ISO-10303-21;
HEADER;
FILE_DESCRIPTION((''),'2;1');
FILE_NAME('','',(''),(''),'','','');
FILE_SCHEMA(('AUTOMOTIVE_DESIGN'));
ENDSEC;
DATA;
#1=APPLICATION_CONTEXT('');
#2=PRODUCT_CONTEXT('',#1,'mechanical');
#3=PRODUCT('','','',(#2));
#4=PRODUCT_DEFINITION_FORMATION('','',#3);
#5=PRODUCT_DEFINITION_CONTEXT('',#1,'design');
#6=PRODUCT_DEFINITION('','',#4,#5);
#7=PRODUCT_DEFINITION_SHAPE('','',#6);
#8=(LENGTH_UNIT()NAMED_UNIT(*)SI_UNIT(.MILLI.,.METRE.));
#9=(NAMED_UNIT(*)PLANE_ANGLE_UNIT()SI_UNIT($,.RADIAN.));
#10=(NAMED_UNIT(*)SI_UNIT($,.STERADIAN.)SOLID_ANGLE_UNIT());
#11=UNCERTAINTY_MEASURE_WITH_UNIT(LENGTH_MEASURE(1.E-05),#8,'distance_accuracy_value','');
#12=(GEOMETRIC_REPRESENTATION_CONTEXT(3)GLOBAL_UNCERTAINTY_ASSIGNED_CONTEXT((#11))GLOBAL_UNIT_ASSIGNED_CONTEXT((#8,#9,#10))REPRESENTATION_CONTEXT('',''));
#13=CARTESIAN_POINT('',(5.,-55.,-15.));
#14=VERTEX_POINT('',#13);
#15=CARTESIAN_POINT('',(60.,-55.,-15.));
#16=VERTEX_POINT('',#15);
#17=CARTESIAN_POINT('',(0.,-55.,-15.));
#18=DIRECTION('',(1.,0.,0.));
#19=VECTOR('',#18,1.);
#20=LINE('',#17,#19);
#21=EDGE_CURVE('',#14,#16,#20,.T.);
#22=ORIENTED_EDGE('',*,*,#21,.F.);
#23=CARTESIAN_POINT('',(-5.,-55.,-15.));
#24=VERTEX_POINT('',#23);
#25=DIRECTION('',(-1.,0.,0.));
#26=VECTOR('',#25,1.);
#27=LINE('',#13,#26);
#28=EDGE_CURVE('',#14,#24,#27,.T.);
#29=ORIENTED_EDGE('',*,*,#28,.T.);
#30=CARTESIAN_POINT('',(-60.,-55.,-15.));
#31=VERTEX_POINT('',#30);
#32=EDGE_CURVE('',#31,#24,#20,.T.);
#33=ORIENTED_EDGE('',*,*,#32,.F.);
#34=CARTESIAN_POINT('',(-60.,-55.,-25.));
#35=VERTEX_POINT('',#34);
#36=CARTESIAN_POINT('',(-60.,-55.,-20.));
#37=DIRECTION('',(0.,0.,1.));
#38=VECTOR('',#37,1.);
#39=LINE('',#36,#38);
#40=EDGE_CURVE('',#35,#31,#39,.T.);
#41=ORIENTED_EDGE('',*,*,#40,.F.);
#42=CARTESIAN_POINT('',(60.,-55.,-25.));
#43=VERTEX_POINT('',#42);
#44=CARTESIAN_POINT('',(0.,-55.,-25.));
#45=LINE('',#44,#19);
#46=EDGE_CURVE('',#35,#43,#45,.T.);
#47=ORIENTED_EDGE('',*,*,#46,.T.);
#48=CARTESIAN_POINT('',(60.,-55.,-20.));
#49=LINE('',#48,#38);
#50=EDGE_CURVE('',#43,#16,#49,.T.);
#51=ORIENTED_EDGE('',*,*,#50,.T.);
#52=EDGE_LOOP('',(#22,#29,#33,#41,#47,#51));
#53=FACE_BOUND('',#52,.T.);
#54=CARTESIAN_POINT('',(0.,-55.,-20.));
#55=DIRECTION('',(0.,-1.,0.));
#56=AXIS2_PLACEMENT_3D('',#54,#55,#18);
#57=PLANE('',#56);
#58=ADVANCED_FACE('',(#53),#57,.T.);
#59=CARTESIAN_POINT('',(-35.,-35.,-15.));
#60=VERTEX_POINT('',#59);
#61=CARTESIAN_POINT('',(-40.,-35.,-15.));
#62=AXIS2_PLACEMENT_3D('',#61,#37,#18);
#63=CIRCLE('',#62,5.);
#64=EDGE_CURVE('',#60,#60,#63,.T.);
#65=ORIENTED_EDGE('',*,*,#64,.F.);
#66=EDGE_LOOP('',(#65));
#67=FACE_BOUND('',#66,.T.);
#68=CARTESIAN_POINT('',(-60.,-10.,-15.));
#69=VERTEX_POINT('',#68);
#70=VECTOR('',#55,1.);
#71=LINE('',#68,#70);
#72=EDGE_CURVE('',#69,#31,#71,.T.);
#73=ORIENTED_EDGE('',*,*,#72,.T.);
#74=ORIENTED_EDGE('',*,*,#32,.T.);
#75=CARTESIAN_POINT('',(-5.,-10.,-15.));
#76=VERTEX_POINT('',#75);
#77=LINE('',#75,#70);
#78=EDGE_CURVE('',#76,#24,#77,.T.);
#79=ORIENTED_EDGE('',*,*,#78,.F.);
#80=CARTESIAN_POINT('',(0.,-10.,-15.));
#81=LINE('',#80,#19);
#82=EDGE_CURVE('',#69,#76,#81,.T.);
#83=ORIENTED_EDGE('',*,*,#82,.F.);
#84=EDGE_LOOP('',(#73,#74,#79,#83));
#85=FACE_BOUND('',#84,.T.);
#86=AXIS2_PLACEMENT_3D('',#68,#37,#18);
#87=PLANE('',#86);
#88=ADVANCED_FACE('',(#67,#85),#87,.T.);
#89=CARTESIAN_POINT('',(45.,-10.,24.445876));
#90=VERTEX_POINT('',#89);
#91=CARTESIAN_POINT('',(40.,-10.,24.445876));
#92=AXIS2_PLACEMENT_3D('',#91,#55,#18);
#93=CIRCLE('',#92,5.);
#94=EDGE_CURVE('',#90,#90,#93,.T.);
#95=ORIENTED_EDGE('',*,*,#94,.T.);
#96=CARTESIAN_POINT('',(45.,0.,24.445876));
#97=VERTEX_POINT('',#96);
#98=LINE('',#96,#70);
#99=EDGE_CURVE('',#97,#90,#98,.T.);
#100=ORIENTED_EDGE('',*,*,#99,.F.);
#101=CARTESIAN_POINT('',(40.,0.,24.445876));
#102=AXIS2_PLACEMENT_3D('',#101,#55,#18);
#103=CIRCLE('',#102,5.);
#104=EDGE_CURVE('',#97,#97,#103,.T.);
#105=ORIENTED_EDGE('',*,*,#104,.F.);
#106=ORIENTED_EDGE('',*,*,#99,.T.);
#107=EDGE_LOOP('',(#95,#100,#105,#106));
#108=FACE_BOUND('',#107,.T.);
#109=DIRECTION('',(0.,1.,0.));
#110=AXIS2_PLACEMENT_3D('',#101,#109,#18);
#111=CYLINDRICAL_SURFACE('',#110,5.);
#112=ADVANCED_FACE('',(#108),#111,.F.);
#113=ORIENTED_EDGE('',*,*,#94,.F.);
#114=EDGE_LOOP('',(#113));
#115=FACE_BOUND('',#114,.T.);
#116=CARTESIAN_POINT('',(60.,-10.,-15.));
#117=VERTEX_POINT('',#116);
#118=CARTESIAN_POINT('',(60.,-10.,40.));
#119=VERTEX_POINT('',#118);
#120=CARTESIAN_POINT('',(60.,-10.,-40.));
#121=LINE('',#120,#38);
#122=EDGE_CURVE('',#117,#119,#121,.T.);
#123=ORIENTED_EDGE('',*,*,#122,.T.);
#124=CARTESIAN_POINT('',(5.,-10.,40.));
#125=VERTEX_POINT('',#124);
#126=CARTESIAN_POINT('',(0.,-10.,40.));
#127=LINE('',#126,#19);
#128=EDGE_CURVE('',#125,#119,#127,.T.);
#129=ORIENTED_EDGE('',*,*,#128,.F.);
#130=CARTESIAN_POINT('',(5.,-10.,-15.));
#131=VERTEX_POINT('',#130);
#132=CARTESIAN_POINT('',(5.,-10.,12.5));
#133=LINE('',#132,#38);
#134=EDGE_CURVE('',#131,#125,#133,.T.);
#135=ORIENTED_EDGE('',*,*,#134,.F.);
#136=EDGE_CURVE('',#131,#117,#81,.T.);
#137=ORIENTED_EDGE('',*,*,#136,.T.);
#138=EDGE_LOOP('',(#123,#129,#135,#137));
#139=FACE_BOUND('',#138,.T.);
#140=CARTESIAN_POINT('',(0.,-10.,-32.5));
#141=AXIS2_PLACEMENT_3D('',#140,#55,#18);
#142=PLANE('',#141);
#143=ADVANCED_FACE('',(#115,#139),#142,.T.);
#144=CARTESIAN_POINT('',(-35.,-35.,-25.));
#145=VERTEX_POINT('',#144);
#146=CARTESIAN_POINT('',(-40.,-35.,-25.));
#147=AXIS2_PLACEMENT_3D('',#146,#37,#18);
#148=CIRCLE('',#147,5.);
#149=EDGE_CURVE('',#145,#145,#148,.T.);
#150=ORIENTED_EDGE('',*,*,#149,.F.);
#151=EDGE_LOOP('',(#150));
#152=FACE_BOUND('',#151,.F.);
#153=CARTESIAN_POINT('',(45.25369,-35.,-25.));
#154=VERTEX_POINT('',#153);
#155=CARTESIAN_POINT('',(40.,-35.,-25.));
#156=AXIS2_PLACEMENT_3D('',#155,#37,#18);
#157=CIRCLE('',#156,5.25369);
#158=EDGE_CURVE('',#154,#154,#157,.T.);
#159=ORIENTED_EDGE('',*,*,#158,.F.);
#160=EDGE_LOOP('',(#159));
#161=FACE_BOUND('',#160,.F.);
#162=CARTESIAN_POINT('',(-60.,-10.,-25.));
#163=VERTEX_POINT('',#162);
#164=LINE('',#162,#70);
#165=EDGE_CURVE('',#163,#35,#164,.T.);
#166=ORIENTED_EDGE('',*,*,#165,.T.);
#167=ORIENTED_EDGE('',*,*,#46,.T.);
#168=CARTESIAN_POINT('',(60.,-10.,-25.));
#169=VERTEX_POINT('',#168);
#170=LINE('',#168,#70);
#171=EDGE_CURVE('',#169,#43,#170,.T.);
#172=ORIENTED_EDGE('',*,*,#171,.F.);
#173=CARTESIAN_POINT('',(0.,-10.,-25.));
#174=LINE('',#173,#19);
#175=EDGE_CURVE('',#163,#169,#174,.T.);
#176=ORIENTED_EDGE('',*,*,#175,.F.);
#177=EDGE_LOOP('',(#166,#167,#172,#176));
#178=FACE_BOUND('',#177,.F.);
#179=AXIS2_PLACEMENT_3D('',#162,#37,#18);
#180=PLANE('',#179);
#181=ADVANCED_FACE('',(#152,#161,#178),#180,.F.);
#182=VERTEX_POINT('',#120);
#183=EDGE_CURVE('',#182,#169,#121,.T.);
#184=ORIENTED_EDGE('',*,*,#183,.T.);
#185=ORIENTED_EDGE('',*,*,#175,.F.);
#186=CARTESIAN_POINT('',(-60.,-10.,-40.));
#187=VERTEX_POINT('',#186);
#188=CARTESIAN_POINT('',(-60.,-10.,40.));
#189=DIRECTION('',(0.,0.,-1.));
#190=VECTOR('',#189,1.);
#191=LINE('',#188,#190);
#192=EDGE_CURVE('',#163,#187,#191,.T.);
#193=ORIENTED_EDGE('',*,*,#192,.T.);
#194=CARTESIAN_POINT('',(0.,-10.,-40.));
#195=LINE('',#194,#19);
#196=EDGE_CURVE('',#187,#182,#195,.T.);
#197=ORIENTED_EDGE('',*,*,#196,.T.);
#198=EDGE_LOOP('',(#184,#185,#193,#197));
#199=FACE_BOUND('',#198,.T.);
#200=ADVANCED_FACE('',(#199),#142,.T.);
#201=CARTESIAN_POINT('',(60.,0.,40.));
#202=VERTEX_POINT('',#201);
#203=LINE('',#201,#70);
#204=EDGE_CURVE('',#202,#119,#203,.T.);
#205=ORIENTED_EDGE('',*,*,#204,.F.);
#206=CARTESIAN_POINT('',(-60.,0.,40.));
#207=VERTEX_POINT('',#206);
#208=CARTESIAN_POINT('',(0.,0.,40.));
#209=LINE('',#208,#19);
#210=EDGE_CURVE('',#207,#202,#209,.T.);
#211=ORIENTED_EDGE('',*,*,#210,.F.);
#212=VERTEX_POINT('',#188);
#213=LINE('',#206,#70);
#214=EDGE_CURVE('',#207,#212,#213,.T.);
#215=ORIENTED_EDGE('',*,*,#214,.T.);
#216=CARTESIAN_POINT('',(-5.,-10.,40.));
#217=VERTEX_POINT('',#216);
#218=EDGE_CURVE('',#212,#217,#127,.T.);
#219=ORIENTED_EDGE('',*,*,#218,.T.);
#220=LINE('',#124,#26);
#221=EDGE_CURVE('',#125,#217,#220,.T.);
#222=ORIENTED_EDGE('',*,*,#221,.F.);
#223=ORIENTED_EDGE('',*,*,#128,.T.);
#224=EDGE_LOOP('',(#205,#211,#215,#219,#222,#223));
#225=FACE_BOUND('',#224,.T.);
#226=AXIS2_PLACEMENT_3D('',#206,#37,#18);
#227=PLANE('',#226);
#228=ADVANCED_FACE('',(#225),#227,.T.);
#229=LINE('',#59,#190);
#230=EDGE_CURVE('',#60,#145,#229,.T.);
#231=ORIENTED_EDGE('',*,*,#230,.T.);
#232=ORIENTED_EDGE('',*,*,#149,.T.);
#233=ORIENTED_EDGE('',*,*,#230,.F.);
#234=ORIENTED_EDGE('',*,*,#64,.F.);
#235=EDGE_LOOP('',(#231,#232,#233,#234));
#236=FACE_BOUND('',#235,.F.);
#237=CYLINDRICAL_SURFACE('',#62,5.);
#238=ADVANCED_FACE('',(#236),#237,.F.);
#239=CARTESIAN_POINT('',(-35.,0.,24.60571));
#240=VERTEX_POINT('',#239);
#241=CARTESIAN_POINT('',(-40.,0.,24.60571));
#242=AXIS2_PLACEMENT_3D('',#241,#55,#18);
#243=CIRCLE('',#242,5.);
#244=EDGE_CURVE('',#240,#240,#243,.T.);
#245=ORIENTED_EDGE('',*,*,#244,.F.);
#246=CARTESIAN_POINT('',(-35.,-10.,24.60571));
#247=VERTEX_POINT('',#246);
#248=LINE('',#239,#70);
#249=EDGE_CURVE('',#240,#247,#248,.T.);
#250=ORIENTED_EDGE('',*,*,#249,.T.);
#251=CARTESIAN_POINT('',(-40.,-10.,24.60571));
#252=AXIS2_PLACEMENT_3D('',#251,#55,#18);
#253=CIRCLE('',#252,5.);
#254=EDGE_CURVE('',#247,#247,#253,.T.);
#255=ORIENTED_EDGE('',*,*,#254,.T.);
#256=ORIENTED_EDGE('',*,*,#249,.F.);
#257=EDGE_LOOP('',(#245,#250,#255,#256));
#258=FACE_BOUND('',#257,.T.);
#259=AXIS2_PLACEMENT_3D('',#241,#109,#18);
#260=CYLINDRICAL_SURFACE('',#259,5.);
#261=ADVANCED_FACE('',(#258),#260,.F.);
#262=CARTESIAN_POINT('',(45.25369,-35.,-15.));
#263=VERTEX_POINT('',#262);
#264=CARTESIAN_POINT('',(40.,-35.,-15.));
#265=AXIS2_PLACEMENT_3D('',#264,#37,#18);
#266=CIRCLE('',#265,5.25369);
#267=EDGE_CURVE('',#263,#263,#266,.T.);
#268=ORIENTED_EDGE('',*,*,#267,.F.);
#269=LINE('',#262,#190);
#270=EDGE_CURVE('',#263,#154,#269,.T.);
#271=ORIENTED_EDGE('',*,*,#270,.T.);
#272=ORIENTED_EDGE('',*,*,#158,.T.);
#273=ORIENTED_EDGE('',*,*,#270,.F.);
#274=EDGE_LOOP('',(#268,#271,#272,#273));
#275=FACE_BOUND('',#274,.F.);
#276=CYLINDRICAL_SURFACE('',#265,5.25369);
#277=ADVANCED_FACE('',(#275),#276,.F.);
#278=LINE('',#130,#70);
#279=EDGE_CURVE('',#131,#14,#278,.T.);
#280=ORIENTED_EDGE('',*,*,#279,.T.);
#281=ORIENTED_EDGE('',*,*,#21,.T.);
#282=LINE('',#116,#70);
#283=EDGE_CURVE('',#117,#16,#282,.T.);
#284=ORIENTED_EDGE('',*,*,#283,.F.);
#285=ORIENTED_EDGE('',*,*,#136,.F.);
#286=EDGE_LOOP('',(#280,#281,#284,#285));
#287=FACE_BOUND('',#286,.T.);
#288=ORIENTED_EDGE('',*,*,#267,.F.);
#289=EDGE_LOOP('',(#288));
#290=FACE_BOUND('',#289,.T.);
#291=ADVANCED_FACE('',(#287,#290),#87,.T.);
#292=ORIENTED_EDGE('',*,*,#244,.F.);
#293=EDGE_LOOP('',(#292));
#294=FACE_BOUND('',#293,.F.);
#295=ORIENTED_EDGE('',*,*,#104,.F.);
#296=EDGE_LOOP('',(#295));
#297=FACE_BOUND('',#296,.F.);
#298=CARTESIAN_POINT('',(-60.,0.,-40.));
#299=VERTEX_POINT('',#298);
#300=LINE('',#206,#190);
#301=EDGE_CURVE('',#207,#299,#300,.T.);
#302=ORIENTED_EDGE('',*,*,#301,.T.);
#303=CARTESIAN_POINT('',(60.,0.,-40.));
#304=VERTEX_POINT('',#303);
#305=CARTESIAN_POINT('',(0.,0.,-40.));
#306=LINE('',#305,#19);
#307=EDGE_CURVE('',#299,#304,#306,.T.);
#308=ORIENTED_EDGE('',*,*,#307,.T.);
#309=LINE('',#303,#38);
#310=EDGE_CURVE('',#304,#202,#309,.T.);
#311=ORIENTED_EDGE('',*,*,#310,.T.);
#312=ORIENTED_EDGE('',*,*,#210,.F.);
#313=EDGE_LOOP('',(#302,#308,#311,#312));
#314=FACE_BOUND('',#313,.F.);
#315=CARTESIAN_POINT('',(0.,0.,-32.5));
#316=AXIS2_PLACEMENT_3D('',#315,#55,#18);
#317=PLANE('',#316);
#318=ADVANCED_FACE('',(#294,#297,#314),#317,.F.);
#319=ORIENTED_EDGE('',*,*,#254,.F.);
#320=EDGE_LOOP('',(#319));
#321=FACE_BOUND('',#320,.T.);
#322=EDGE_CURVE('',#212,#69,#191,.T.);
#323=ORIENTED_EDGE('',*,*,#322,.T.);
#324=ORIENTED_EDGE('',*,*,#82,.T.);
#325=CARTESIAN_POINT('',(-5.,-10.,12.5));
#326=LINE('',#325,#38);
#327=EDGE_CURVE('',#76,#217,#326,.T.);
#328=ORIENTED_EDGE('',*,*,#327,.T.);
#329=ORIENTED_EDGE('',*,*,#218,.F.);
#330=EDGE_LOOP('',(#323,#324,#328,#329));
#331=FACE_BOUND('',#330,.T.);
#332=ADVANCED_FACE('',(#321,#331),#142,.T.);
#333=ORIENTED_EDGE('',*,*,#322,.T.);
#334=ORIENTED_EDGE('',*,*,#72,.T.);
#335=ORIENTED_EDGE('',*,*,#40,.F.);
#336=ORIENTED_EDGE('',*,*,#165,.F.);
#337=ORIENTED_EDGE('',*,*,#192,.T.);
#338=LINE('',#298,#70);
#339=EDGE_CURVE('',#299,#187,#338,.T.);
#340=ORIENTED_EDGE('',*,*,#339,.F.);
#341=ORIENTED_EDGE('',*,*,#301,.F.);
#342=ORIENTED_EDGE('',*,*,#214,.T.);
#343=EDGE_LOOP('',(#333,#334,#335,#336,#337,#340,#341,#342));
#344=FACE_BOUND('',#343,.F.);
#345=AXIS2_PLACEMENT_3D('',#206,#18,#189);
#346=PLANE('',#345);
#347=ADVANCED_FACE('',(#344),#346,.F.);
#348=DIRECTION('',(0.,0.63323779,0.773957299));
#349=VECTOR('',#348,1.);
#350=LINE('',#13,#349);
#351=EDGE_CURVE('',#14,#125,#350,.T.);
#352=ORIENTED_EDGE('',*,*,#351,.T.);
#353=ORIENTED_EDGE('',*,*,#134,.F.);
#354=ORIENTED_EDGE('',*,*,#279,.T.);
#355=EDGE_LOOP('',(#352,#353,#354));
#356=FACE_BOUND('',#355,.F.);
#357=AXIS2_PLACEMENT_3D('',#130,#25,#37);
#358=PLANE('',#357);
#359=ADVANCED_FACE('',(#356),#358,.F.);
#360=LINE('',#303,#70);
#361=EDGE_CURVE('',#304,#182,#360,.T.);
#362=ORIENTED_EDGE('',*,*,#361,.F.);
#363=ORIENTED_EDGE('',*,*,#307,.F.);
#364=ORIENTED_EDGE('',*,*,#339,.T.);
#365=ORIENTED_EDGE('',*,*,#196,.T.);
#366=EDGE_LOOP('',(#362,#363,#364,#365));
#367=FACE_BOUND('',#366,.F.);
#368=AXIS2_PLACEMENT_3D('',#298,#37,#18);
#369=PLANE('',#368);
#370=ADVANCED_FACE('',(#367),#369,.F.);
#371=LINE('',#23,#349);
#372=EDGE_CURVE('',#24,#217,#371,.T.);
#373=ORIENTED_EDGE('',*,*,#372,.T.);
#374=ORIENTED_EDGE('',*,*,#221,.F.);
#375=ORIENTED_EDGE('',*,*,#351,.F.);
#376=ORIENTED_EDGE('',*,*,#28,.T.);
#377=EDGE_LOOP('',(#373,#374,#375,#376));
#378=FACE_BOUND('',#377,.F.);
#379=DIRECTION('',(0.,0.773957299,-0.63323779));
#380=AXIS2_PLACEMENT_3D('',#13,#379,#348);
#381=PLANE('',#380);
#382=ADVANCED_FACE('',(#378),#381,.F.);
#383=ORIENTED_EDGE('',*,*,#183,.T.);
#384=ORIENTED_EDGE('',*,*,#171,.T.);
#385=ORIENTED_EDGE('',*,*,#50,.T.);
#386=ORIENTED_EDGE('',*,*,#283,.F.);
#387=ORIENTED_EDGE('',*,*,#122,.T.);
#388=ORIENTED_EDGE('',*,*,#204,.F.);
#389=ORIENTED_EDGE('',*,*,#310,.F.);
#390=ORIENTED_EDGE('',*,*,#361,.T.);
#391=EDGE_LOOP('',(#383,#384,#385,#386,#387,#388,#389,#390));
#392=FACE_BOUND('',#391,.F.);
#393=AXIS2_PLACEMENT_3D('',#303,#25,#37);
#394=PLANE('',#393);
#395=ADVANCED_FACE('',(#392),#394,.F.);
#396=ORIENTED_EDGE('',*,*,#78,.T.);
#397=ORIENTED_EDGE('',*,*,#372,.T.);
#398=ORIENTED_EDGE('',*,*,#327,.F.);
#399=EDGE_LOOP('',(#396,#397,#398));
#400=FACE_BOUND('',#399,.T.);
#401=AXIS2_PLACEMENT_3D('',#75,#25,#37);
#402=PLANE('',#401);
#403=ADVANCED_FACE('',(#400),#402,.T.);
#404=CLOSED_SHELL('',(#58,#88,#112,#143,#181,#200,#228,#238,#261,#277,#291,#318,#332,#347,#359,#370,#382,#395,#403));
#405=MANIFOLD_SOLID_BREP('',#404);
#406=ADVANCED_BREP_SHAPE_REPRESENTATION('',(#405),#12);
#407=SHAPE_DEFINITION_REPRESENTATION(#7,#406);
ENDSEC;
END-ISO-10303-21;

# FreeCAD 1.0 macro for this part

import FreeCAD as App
import Part
import Sketcher
from FreeCAD import Vector


def add_polygon(sketch, points):
    """Adds a closed chain of lines whose ends are joined by coincident constraints."""
    first, n = sketch.GeometryCount, len(points)
    for a, b in zip(points, points[1:] + points[:1]):
        sketch.addGeometry(Part.LineSegment(App.Vector(*a, 0), App.Vector(*b, 0)), False)
    for i in range(n):
        sketch.addConstraint(Sketcher.Constraint("Coincident", first + i, 2, first + (i + 1) % n, 1))

doc = App.newDocument("Part")
body = doc.addObject("PartDesign::Body", "Body")

# Sketch on XZ plane
sketch1 = body.newObject("Sketcher::SketchObject", "Sketch")
sketch1.AttachmentSupport = (doc.getObject("XZ_Plane"), [""])
sketch1.MapMode = "FlatFace"
add_polygon(sketch1, [(-60, -40), (60, -40), (60, 40), (-60, 40)])  # lines 0-3
sketch1.addGeometry(Part.Circle(Vector(40, 24.445876, 0), Vector(0, 0, 1), 5), False)  # 4
sketch1.addGeometry(Part.Circle(Vector(-40, 24.60571, 0), Vector(0, 0, 1), 5), False)  # 5
sketch1.addConstraint(Sketcher.Constraint("Horizontal", 0))
sketch1.addConstraint(Sketcher.Constraint("Vertical", 1))
sketch1.addConstraint(Sketcher.Constraint("Horizontal", 2))
sketch1.addConstraint(Sketcher.Constraint("Vertical", 3))
sketch1.addConstraint(Sketcher.Constraint("Equal", 4, 5))
sketch1.addConstraint(Sketcher.Constraint("Symmetric", 0, 2, 2, 2, -1, 1))
sketch1.addConstraint(Sketcher.Constraint("Diameter", 4, 10.0))
sketch1.addConstraint(Sketcher.Constraint("DistanceX", 0, 1, 0, 2, 120.0))
sketch1.addConstraint(Sketcher.Constraint("DistanceY", 1, 1, 1, 2, 80.0))
sketch1.addConstraint(Sketcher.Constraint("DistanceX", -1, 1, 4, 3, 40.0))
sketch1.addConstraint(Sketcher.Constraint("DistanceX", 5, 3, -1, 1, 40.0))
sketch1.addConstraint(Sketcher.Constraint("DistanceY", -1, 1, 5, 3, 24.60571))
sketch1.addConstraint(Sketcher.Constraint("DistanceY", -1, 1, 4, 3, 24.445876))
pad1 = body.newObject("PartDesign::Pad", "Pad")
pad1.Profile = sketch1
pad1.Length = 10

# Sketch on XZ plane
sketch2 = body.newObject("Sketcher::SketchObject", "Sketch001")
sketch2.AttachmentSupport = (doc.getObject("XZ_Plane"), [""])
sketch2.MapMode = "FlatFace"
sketch2.AttachmentOffset = App.Placement(Vector(0, 0, 10), App.Rotation())
add_polygon(sketch2, [(-60, -15), (-60, -25), (60, -25), (60, -15)])  # lines 0-3
sketch2.addConstraint(Sketcher.Constraint("Vertical", 0))
sketch2.addConstraint(Sketcher.Constraint("Horizontal", 1))
sketch2.addConstraint(Sketcher.Constraint("Vertical", 2))
sketch2.addConstraint(Sketcher.Constraint("Horizontal", 3))
sketch2.addConstraint(Sketcher.Constraint("DistanceX", 1, 1, 1, 2, 120.0))
sketch2.addConstraint(Sketcher.Constraint("DistanceY", 0, 2, 0, 1, 10.0))
sketch2.addConstraint(Sketcher.Constraint("DistanceX", 0, 2, -1, 1, 60.0))
sketch2.addConstraint(Sketcher.Constraint("DistanceY", 0, 2, -1, 1, 25.0))
pad2 = body.newObject("PartDesign::Pad", "Pad001")
pad2.Profile = sketch2
pad2.Length = 45

# Sketch on XY plane
sketch3 = body.newObject("Sketcher::SketchObject", "Sketch002")
sketch3.AttachmentSupport = (doc.getObject("XY_Plane"), [""])
sketch3.MapMode = "FlatFace"
sketch3.AttachmentOffset = App.Placement(Vector(0, 0, -15), App.Rotation())
sketch3.addGeometry(Part.Circle(Vector(-40, -35, 0), Vector(0, 0, 1), 5), False)
sketch3.addGeometry(Part.Circle(Vector(40, -35, 0), Vector(0, 0, 1), 5.25369), False)
sketch3.addConstraint(Sketcher.Constraint("Symmetric", 0, 3, 1, 3, -2))
sketch3.addConstraint(Sketcher.Constraint("Diameter", 0, 10.0))
sketch3.addConstraint(Sketcher.Constraint("DistanceX", 0, 3, -1, 1, 40.0))
sketch3.addConstraint(Sketcher.Constraint("DistanceY", 0, 3, -1, 1, 35.0))
sketch3.addConstraint(Sketcher.Constraint("Diameter", 1, 10.50738))
pocket1 = body.newObject("PartDesign::Pocket", "Pocket")
pocket1.Profile = sketch3
pocket1.Length = 25

# Sketch on XZ plane
sketch4 = body.newObject("Sketcher::SketchObject", "Sketch003")
sketch4.AttachmentSupport = (doc.getObject("XZ_Plane"), [""])
sketch4.MapMode = "FlatFace"
sketch4.AttachmentOffset = App.Placement(Vector(0, 0, 10), App.Rotation())
add_polygon(sketch4, [(-5, 40), (-5, -15), (5, -15), (5, 40)])  # lines 0-3
sketch4.addConstraint(Sketcher.Constraint("Vertical", 0))
sketch4.addConstraint(Sketcher.Constraint("Horizontal", 1))
sketch4.addConstraint(Sketcher.Constraint("Vertical", 2))
sketch4.addConstraint(Sketcher.Constraint("Horizontal", 3))
sketch4.addConstraint(Sketcher.Constraint("DistanceX", 1, 1, 1, 2, 10.0))
sketch4.addConstraint(Sketcher.Constraint("DistanceY", 0, 2, 0, 1, 55.0))
sketch4.addConstraint(Sketcher.Constraint("DistanceX", 0, 2, -1, 1, 5.0))
sketch4.addConstraint(Sketcher.Constraint("DistanceY", 0, 2, -1, 1, 15.0))
pad3 = body.newObject("PartDesign::Pad", "Pad002")
pad3.Profile = sketch4
pad3.Length = 45

# Sketch on YZ plane
sketch5 = body.newObject("Sketcher::SketchObject", "Sketch004")
sketch5.AttachmentSupport = (doc.getObject("YZ_Plane"), [""])
sketch5.MapMode = "FlatFace"
sketch5.AttachmentOffset = App.Placement(Vector(0, 0, 5), App.Rotation())
add_polygon(sketch5, [(-55, -15), (-10, 40), (-55, 40)])  # lines 0-2
sketch5.addConstraint(Sketcher.Constraint("Horizontal", 1))
sketch5.addConstraint(Sketcher.Constraint("Vertical", 2))
sketch5.addConstraint(Sketcher.Constraint("DistanceX", 1, 2, 1, 1, 45.0))
sketch5.addConstraint(Sketcher.Constraint("DistanceY", 2, 2, 2, 1, 55.0))
sketch5.addConstraint(Sketcher.Constraint("DistanceX", 0, 2, -1, 1, 10.0))
sketch5.addConstraint(Sketcher.Constraint("DistanceY", -1, 1, 0, 2, 40.0))
pocket2 = body.newObject("PartDesign::Pocket", "Pocket001")
pocket2.Profile = sketch5
pocket2.Length = 10

doc.recompute()
